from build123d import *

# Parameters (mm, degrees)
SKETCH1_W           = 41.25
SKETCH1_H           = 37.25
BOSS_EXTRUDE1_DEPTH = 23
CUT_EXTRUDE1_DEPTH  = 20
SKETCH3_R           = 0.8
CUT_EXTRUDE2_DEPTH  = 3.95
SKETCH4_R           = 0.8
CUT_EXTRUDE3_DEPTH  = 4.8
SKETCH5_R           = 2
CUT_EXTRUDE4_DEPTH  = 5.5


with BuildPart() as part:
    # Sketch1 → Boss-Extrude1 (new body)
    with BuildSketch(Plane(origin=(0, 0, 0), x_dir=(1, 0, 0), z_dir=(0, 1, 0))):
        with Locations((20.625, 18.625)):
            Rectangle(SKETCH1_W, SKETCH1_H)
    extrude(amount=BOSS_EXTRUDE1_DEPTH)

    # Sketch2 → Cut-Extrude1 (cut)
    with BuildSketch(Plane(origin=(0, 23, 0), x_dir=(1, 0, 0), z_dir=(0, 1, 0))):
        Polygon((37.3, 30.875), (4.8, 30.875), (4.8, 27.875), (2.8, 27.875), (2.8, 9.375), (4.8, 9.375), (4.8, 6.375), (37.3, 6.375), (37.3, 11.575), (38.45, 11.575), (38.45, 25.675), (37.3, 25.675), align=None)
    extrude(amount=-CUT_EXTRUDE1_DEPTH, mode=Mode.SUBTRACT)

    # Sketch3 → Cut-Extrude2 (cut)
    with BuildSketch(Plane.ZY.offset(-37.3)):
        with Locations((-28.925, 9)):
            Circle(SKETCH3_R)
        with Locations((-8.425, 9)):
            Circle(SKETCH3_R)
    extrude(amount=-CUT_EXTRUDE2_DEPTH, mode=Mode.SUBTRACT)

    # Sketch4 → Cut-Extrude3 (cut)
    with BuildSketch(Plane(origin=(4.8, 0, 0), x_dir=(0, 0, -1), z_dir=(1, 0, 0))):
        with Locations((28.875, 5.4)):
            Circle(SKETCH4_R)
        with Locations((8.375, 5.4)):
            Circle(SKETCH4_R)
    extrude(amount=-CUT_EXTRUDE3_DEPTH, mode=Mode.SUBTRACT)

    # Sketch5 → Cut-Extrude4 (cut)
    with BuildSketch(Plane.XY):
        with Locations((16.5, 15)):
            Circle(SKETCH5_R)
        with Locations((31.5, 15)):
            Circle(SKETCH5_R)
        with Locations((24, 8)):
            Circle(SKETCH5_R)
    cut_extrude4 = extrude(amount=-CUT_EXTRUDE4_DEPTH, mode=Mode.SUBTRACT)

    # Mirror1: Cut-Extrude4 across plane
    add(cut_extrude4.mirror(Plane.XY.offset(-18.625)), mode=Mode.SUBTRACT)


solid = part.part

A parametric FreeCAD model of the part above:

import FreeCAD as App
import Part
import Sketcher


def add_polygon(sketch, points):
    """Adds a closed chain of lines whose ends are joined by coincident constraints."""
    first, n = sketch.GeometryCount, len(points)
    for a, b in zip(points, points[1:] + points[:1]):
        sketch.addGeometry(Part.LineSegment(App.Vector(*a, 0), App.Vector(*b, 0)), False)
    for i in range(n):
        sketch.addConstraint(Sketcher.Constraint("Coincident", first + i, 2, first + (i + 1) % n, 1))

doc = App.newDocument("Part")
body = doc.addObject("PartDesign::Body", "Body")

# Sketch on XZ plane
sketch1 = body.newObject("Sketcher::SketchObject", "Sketch")
sketch1.AttachmentSupport = (doc.getObject("XZ_Plane"), [""])
sketch1.MapMode = "FlatFace"
add_polygon(sketch1, [(0, -37), (0, 0), (41, 0), (41, -37)])  # lines 0-3
sketch1.addConstraint(Sketcher.Constraint("Vertical", 0))
sketch1.addConstraint(Sketcher.Constraint("Horizontal", 1))
sketch1.addConstraint(Sketcher.Constraint("Vertical", 2))
sketch1.addConstraint(Sketcher.Constraint("Horizontal", 3))
sketch1.addConstraint(Sketcher.Constraint("Coincident", 0, 2, -1, 1))
sketch1.addConstraint(Sketcher.Constraint("DistanceX", 1, 1, 1, 2, 41.25))
sketch1.addConstraint(Sketcher.Constraint("DistanceY", 0, 1, 0, 2, 37.25))
pad1 = body.newObject("PartDesign::Pad", "Pad")
pad1.Profile = sketch1
pad1.Length = 23
pad1.Reversed = True

# Sketch on XZ plane
sketch2 = body.newObject("Sketcher::SketchObject", "Sketch001")
sketch2.AttachmentSupport = (doc.getObject("XZ_Plane"), [""])
sketch2.MapMode = "FlatFace"
sketch2.AttachmentOffset = App.Placement(App.Vector(0, 0, -23), App.Rotation())
add_polygon(sketch2, [(37.3, -30.9), (4.8, -30.9), (4.8, -27.9), (2.8, -27.9), (2.8, -9.4), (4.8, -9.4), (4.8, -6.4), (37.3, -6.4), (37.3, -11.6), (38.5, -11.6), (38.5, -25.7), (37.3, -25.7)])  # lines 0-11
sketch2.addConstraint(Sketcher.Constraint("Horizontal", 0))
sketch2.addConstraint(Sketcher.Constraint("Vertical", 1))
sketch2.addConstraint(Sketcher.Constraint("Horizontal", 2))
sketch2.addConstraint(Sketcher.Constraint("Vertical", 3))
sketch2.addConstraint(Sketcher.Constraint("Horizontal", 4))
sketch2.addConstraint(Sketcher.Constraint("Vertical", 5))
sketch2.addConstraint(Sketcher.Constraint("Horizontal", 6))
sketch2.addConstraint(Sketcher.Constraint("Vertical", 7))
sketch2.addConstraint(Sketcher.Constraint("Horizontal", 8))
sketch2.addConstraint(Sketcher.Constraint("Vertical", 9))
sketch2.addConstraint(Sketcher.Constraint("Horizontal", 10))
sketch2.addConstraint(Sketcher.Constraint("Vertical", 11))
sketch2.addConstraint(Sketcher.Constraint("Vertical", 1, 2, 4, 2))
sketch2.addConstraint(Sketcher.Constraint("Vertical", 7, 2, 10, 2))
sketch2.addConstraint(Sketcher.Constraint("Equal", 1, 5))
sketch2.addConstraint(Sketcher.Constraint("Equal", 7, 11))
sketch2.addConstraint(Sketcher.Constraint("DistanceX", 2, 2, 2, 1, 2.0))
sketch2.addConstraint(Sketcher.Constraint("DistanceY", 1, 1, 1, 2, 3.0))
sketch2.addConstraint(Sketcher.Constraint("DistanceX", 0, 2, 0, 1, 32.5))
sketch2.addConstraint(Sketcher.Constraint("DistanceY", 3, 1, 3, 2, 18.5))
sketch2.addConstraint(Sketcher.Constraint("DistanceY", 7, 2, 7, 1, 5.2))
sketch2.addConstraint(Sketcher.Constraint("DistanceX", 8, 1, 8, 2, 1.15))
sketch2.addConstraint(Sketcher.Constraint("DistanceX", -1, 1, 0, 2, 4.8))
sketch2.addConstraint(Sketcher.Constraint("DistanceY", 0, 2, -1, 1, 30.875))
pocket1 = body.newObject("PartDesign::Pocket", "Pocket")
pocket1.Profile = sketch2
pocket1.Length = 20
pocket1.Reversed = True

# Sketch on YZ plane
sketch3 = body.newObject("Sketcher::SketchObject", "Sketch002")
sketch3.AttachmentSupport = (doc.getObject("YZ_Plane"), [""])
sketch3.MapMode = "FlatFace"
sketch3.AttachmentOffset = App.Placement(App.Vector(0, 0, 37.3), App.Rotation())
sketch3.addGeometry(Part.Circle(App.Vector(9, -28.9, 0), App.Vector(0, 0, 1), 0.8), False)
sketch3.addGeometry(Part.Circle(App.Vector(9, -8.4, 0), App.Vector(0, 0, 1), 0.8), False)
sketch3.addConstraint(Sketcher.Constraint("Equal", 0, 1))
sketch3.addConstraint(Sketcher.Constraint("Vertical", 0, 3, 1, 3))
sketch3.addConstraint(Sketcher.Constraint("Diameter", 0, 1.6))
sketch3.addConstraint(Sketcher.Constraint("DistanceX", -1, 1, 0, 3, 9.0))
sketch3.addConstraint(Sketcher.Constraint("DistanceY", 0, 3, 1, 3, 20.5))
sketch3.addConstraint(Sketcher.Constraint("DistanceY", 0, 3, -1, 1, 28.925))
pocket2 = body.newObject("PartDesign::Pocket", "Pocket001")
pocket2.Profile = sketch3
pocket2.Length = 3.95
pocket2.Reversed = True

# Sketch on YZ plane
sketch4 = body.newObject("Sketcher::SketchObject", "Sketch003")
sketch4.AttachmentSupport = (doc.getObject("YZ_Plane"), [""])
sketch4.MapMode = "FlatFace"
sketch4.AttachmentOffset = App.Placement(App.Vector(0, 0, 4.8), App.Rotation())
sketch4.addGeometry(Part.Circle(App.Vector(5.4, -28.9, 0), App.Vector(0, 0, 1), 0.8), False)
sketch4.addGeometry(Part.Circle(App.Vector(5.4, -8.4, 0), App.Vector(0, 0, 1), 0.8), False)
sketch4.addConstraint(Sketcher.Constraint("Equal", 0, 1))
sketch4.addConstraint(Sketcher.Constraint("Vertical", 0, 3, 1, 3))
sketch4.addConstraint(Sketcher.Constraint("Diameter", 0, 1.6))
sketch4.addConstraint(Sketcher.Constraint("DistanceX", -1, 1, 0, 3, 5.4))
sketch4.addConstraint(Sketcher.Constraint("DistanceY", 0, 3, 1, 3, 20.5))
sketch4.addConstraint(Sketcher.Constraint("DistanceY", 0, 3, -1, 1, 28.875))
pocket3 = body.newObject("PartDesign::Pocket", "Pocket002")
pocket3.Profile = sketch4
pocket3.Length = 4.8

# Sketch on XY plane
sketch5 = body.newObject("Sketcher::SketchObject", "Sketch004")
sketch5.AttachmentSupport = (doc.getObject("XY_Plane"), [""])
sketch5.MapMode = "FlatFace"
sketch5.addGeometry(Part.Circle(App.Vector(16.5, 15, 0), App.Vector(0, 0, 1), 2), False)
sketch5.addGeometry(Part.Circle(App.Vector(31.5, 15, 0), App.Vector(0, 0, 1), 2), False)
sketch5.addGeometry(Part.Circle(App.Vector(24, 8, 0), App.Vector(0, 0, 1), 2), False)
sketch5.addConstraint(Sketcher.Constraint("Equal", 0, 1))
sketch5.addConstraint(Sketcher.Constraint("Equal", 1, 2))
sketch5.addConstraint(Sketcher.Constraint("Horizontal", 0, 3, 1, 3))
sketch5.addConstraint(Sketcher.Constraint("Diameter", 0, 4.0))
sketch5.addConstraint(Sketcher.Constraint("DistanceY", -1, 1, 0, 3, 15.0))
sketch5.addConstraint(Sketcher.Constraint("DistanceX", -1, 1, 2, 3, 24.0))
sketch5.addConstraint(Sketcher.Constraint("DistanceY", -1, 1, 2, 3, 8.0))
sketch5.addConstraint(Sketcher.Constraint("DistanceX", 0, 3, 1, 3, 15.0))
sketch5.addConstraint(Sketcher.Constraint("DistanceX", -1, 1, 0, 3, 16.5))
pocket4 = body.newObject("PartDesign::Pocket", "Pocket003")
pocket4.Profile = sketch5
pocket4.Length = 5.5
doc.recompute()

datumplane = body.newObject("PartDesign::Plane", "DatumPlane")
datumplane.AttachmentSupport = (doc.getObject("XY_Plane"), [""])
datumplane.MapMode = "FlatFace"
datumplane.AttachmentOffset = App.Placement(App.Vector(0, 0, -18.625), App.Rotation())
mirrored = body.newObject("PartDesign::Mirrored", "Mirrored")
mirrored.Originals = [pocket4]
mirrored.MirrorPlane = (datumplane, [""])
body.Tip = mirrored

doc.recompute()
